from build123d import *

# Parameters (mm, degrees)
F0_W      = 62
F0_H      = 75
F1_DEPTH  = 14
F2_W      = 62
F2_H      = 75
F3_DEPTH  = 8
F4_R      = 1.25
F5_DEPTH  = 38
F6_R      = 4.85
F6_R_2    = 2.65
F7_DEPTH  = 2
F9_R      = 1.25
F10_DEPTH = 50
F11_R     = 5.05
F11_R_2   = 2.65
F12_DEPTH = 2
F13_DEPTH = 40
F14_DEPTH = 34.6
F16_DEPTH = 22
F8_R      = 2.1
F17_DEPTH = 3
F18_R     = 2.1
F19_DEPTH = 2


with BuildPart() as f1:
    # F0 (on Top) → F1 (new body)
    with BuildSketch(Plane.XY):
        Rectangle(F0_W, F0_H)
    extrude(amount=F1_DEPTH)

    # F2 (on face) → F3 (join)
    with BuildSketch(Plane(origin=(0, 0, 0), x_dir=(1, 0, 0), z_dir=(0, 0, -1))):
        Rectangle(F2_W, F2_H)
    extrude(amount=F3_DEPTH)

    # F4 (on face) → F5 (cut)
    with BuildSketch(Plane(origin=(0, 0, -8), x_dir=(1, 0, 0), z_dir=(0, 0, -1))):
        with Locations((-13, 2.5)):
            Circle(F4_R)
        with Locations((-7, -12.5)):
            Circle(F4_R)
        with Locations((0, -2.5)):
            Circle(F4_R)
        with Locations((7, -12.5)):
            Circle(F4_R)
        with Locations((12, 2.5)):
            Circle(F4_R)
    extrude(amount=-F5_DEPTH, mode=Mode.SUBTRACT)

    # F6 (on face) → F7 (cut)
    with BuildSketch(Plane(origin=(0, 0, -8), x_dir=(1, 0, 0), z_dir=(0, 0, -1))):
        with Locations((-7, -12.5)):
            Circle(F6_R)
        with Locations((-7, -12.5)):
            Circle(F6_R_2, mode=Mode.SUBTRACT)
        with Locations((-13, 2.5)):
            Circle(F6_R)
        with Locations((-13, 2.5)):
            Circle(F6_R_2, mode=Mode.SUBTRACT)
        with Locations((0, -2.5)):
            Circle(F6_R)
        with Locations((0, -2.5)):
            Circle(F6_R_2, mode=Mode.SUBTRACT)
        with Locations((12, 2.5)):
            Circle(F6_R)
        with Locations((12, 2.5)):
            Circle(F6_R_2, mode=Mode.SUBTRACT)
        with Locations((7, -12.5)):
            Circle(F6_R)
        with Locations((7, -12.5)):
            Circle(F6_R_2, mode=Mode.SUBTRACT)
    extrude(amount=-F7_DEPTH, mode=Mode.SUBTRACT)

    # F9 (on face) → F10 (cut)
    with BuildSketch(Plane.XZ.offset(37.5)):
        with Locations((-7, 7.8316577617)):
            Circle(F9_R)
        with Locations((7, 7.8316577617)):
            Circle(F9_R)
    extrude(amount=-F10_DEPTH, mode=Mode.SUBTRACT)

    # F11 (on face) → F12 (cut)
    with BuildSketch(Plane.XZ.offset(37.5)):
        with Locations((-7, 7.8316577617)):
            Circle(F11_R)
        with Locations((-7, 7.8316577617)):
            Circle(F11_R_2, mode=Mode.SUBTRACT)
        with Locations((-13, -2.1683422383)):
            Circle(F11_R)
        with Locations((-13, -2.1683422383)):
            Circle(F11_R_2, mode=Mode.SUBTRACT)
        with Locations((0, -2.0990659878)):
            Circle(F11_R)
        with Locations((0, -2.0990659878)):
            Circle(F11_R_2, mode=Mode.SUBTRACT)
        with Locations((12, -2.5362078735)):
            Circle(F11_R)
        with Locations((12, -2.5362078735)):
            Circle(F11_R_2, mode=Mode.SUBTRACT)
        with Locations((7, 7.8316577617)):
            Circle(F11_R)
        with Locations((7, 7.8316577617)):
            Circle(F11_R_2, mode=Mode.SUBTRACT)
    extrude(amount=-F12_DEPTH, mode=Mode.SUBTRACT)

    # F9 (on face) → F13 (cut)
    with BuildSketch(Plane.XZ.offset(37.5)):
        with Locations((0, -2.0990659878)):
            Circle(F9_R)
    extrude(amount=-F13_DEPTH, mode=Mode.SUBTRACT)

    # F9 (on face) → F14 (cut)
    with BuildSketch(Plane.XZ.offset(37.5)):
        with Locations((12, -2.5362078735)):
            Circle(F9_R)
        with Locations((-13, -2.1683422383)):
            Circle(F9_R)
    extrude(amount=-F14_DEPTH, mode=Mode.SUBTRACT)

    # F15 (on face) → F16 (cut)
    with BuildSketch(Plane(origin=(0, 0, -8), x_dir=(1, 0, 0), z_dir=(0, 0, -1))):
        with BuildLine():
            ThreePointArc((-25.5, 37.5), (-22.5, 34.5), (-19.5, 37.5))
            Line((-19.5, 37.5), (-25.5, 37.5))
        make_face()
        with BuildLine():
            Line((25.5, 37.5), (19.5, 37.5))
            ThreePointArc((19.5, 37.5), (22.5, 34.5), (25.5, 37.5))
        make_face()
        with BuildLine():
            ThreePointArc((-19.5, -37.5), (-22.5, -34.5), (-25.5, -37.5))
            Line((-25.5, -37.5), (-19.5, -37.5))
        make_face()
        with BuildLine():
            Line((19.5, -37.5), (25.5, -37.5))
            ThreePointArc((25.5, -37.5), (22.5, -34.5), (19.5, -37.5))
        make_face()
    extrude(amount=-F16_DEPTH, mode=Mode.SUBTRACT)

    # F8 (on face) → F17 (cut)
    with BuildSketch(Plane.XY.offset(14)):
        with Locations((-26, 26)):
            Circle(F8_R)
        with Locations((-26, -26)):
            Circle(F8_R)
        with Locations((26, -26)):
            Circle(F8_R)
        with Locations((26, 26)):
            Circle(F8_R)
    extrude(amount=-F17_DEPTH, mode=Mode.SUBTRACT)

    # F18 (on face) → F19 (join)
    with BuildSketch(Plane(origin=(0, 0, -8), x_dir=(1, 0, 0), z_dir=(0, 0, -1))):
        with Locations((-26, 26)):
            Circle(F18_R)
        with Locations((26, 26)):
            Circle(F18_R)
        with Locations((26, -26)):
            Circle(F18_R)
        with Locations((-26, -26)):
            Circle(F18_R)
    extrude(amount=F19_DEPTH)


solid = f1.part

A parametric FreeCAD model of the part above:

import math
import FreeCAD as App
import Part
import Sketcher
Q = App.Units.Quantity

doc = App.newDocument("Part")
params = doc.addObject("Spreadsheet::Sheet", "Params")
for row, (alias, value) in enumerate([
    ("sketch1_width", "62 mm"),
    ("sketch1_height", "75 mm"),
    ("pad1_length", "14 mm"),
    ("sketch2_width", "62 mm"),
    ("sketch2_height", "75 mm"),
    ("pad2_length", "8 mm"),
    ("sketch3_diameter", "2.5 mm"),
    ("pocket1_length", "38 mm"),
    ("sketch4_diameter", "9.7 mm"),
    ("sketch4_diameter2", "5.3 mm"),
    ("pocket2_length", "2 mm"),
    ("sketch5_diameter", "2.5 mm"),
    ("pocket3_length", "50 mm"),
    ("sketch6_diameter", "10.1 mm"),
    ("sketch6_diameter2", "5.3 mm"),
    ("pocket4_length", "2 mm"),
    ("sketch7_diameter", "2.5 mm"),
    ("pocket5_length", "40 mm"),
    ("sketch8_diameter", "2.5 mm"),
    ("pocket6_length", "34.6 mm"),
    ("sketch9_radius", "3 mm"),
    ("pocket7_length", "22 mm"),
    ("sketch10_diameter", "4.2 mm"),
    ("pocket8_length", "3 mm"),
    ("sketch11_diameter", "4.2 mm"),
    ("pad3_length", "2 mm"),
], start=1):
    params.set(f"A{row}", alias)
    params.set(f"B{row}", "=" + value)
    params.setAlias(f"B{row}", alias)

body = doc.addObject("PartDesign::Body", "Body")

sketch1 = body.newObject("Sketcher::SketchObject", "Sketch")
sketch1.AttachmentSupport = (doc.getObject("XY_Plane"), [""])
sketch1.MapMode = "FlatFace"
sketch1.addGeometry([
    Part.LineSegment(App.Vector(-31, 38, 0), App.Vector(-31, -38, 0)),
    Part.LineSegment(App.Vector(-31, -38, 0), App.Vector(31, -38, 0)),
    Part.LineSegment(App.Vector(31, -38, 0), App.Vector(31, 38, 0)),
    Part.LineSegment(App.Vector(31, 38, 0), App.Vector(-31, 38, 0)),
], False)
sketch1.addConstraint([
    Sketcher.Constraint("Coincident", 0, 2, 1, 1),
    Sketcher.Constraint("Coincident", 1, 2, 2, 1),
    Sketcher.Constraint("Coincident", 2, 2, 3, 1),
    Sketcher.Constraint("Coincident", 3, 2, 0, 1),
    Sketcher.Constraint("Vertical", 0),
    Sketcher.Constraint("Horizontal", 1),
    Sketcher.Constraint("Vertical", 2),
    Sketcher.Constraint("Horizontal", 3),
    Sketcher.Constraint("Symmetric", 0, 2, 2, 2, -1, 1),
    Sketcher.Constraint("DistanceX", 1, 1, 1, 2, Q("62 mm")),
    Sketcher.Constraint("DistanceY", 0, 2, 0, 1, Q("75 mm")),
])
sketch1.setExpression("Constraints[9]", "Params.sketch1_width")
sketch1.setExpression("Constraints[10]", "Params.sketch1_height")
pad1 = body.newObject("PartDesign::Pad", "Pad")
pad1.Profile = sketch1
pad1.setExpression("Length", "Params.pad1_length")

sketch2 = body.newObject("Sketcher::SketchObject", "Sketch001")
sketch2.AttachmentSupport = (doc.getObject("XY_Plane"), [""])
sketch2.MapMode = "FlatFace"
sketch2.addGeometry([
    Part.LineSegment(App.Vector(-31, -38, 0), App.Vector(-31, 38, 0)),
    Part.LineSegment(App.Vector(-31, 38, 0), App.Vector(31, 38, 0)),
    Part.LineSegment(App.Vector(31, 38, 0), App.Vector(31, -38, 0)),
    Part.LineSegment(App.Vector(31, -38, 0), App.Vector(-31, -38, 0)),
], False)
sketch2.addConstraint([
    Sketcher.Constraint("Coincident", 0, 2, 1, 1),
    Sketcher.Constraint("Coincident", 1, 2, 2, 1),
    Sketcher.Constraint("Coincident", 2, 2, 3, 1),
    Sketcher.Constraint("Coincident", 3, 2, 0, 1),
    Sketcher.Constraint("Vertical", 0),
    Sketcher.Constraint("Horizontal", 1),
    Sketcher.Constraint("Vertical", 2),
    Sketcher.Constraint("Horizontal", 3),
    Sketcher.Constraint("Symmetric", 0, 2, 2, 2, -1, 1),
    Sketcher.Constraint("DistanceX", 1, 1, 1, 2, Q("62 mm")),
    Sketcher.Constraint("DistanceY", 0, 1, 0, 2, Q("75 mm")),
])
sketch2.setExpression("Constraints[9]", "Params.sketch2_width")
sketch2.setExpression("Constraints[10]", "Params.sketch2_height")
pad2 = body.newObject("PartDesign::Pad", "Pad001")
pad2.Profile = sketch2
pad2.setExpression("Length", "Params.pad2_length")
pad2.Reversed = True

sketch3 = body.newObject("Sketcher::SketchObject", "Sketch002")
sketch3.AttachmentSupport = (doc.getObject("XY_Plane"), [""])
sketch3.MapMode = "FlatFace"
sketch3.AttachmentOffset = App.Placement(App.Vector(0, 0, -8), App.Rotation())
sketch3.addGeometry([
    Part.Circle(App.Vector(-13, -2.5, 0), App.Vector(0, 0, 1), 1.2),
    Part.Circle(App.Vector(-7, 12.5, 0), App.Vector(0, 0, 1), 1.2),
    Part.Circle(App.Vector(0, 2.5, 0), App.Vector(0, 0, 1), 1.2),
    Part.Circle(App.Vector(7, 12.5, 0), App.Vector(0, 0, 1), 1.2),
    Part.Circle(App.Vector(12, -2.5, 0), App.Vector(0, 0, 1), 1.2),
], False)
sketch3.addConstraint([
    Sketcher.Constraint("Equal", 0, 1),
    Sketcher.Constraint("Equal", 1, 2),
    Sketcher.Constraint("Equal", 2, 3),
    Sketcher.Constraint("Equal", 3, 4),
    Sketcher.Constraint("Symmetric", 1, 3, 3, 3, -2),
    Sketcher.Constraint("PointOnObject", 2, 3, -2),
    Sketcher.Constraint("Horizontal", 0, 3, 4, 3),
    Sketcher.Constraint("Diameter", 0, Q("2.5 mm")),
    Sketcher.Constraint("DistanceX", 0, 3, -1, 1, Q("13 mm")),
    Sketcher.Constraint("DistanceX", 1, 3, -1, 1, Q("7 mm")),
    Sketcher.Constraint("DistanceX", -1, 1, 4, 3, Q("12 mm")),
    Sketcher.Constraint("DistanceY", 0, 3, 1, 3, Q("15 mm")),
    Sketcher.Constraint("DistanceY", 2, 3, 1, 3, Q("10 mm")),
    Sketcher.Constraint("DistanceY", 0, 3, -1, 1, Q("2.5 mm")),
])
sketch3.setExpression("Constraints[7]", "Params.sketch3_diameter")
pocket1 = body.newObject("PartDesign::Pocket", "Pocket")
pocket1.Profile = sketch3
pocket1.setExpression("Length", "Params.pocket1_length")
pocket1.Reversed = True

sketch4 = body.newObject("Sketcher::SketchObject", "Sketch003")
sketch4.AttachmentSupport = (doc.getObject("XY_Plane"), [""])
sketch4.MapMode = "FlatFace"
sketch4.AttachmentOffset = App.Placement(App.Vector(0, 0, -8), App.Rotation())
sketch4.addGeometry([
    Part.Circle(App.Vector(-7, 12.5, 0), App.Vector(0, 0, 1), 4.8),
    Part.Circle(App.Vector(-7, 12.5, 0), App.Vector(0, 0, 1), 2.6),
    Part.Circle(App.Vector(-13, -2.5, 0), App.Vector(0, 0, 1), 4.8),
    Part.Circle(App.Vector(-13, -2.5, 0), App.Vector(0, 0, 1), 2.6),
    Part.Circle(App.Vector(0, 2.5, 0), App.Vector(0, 0, 1), 4.8),
    Part.Circle(App.Vector(0, 2.5, 0), App.Vector(0, 0, 1), 2.6),
    Part.Circle(App.Vector(12, -2.5, 0), App.Vector(0, 0, 1), 4.8),
    Part.Circle(App.Vector(12, -2.5, 0), App.Vector(0, 0, 1), 2.6),
    Part.Circle(App.Vector(7, 12.5, 0), App.Vector(0, 0, 1), 4.8),
    Part.Circle(App.Vector(7, 12.5, 0), App.Vector(0, 0, 1), 2.6),
], False)
sketch4.addConstraint([
    Sketcher.Constraint("Coincident", 1, 3, 0, 3),
    Sketcher.Constraint("Coincident", 3, 3, 2, 3),
    Sketcher.Constraint("Coincident", 5, 3, 4, 3),
    Sketcher.Constraint("Coincident", 7, 3, 6, 3),
    Sketcher.Constraint("Coincident", 9, 3, 8, 3),
    Sketcher.Constraint("Equal", 0, 2),
    Sketcher.Constraint("Equal", 1, 3),
    Sketcher.Constraint("Equal", 2, 4),
    Sketcher.Constraint("Equal", 3, 5),
    Sketcher.Constraint("Equal", 4, 6),
    Sketcher.Constraint("Equal", 5, 7),
    Sketcher.Constraint("Equal", 6, 8),
    Sketcher.Constraint("Equal", 7, 9),
    Sketcher.Constraint("Symmetric", 0, 3, 8, 3, -2),
    Sketcher.Constraint("PointOnObject", 4, 3, -2),
    Sketcher.Constraint("Horizontal", 3, 3, 6, 3),
    Sketcher.Constraint("Diameter", 0, Q("9.7 mm")),
    Sketcher.Constraint("Diameter", 1, Q("5.3 mm")),
    Sketcher.Constraint("DistanceX", 0, 3, -1, 1, Q("7 mm")),
    Sketcher.Constraint("DistanceX", 2, 3, -1, 1, Q("13 mm")),
    Sketcher.Constraint("DistanceX", -1, 1, 6, 3, Q("12 mm")),
    Sketcher.Constraint("DistanceY", 2, 3, 0, 3, Q("15 mm")),
    Sketcher.Constraint("DistanceY", 4, 3, 0, 3, Q("10 mm")),
    Sketcher.Constraint("DistanceY", -1, 1, 0, 3, Q("12.5 mm")),
])
sketch4.setExpression("Constraints[16]", "Params.sketch4_diameter")
sketch4.setExpression("Constraints[17]", "Params.sketch4_diameter2")
pocket2 = body.newObject("PartDesign::Pocket", "Pocket001")
pocket2.Profile = sketch4
pocket2.setExpression("Length", "Params.pocket2_length")
pocket2.Reversed = True

sketch5 = body.newObject("Sketcher::SketchObject", "Sketch004")
sketch5.AttachmentSupport = (doc.getObject("XZ_Plane"), [""])
sketch5.MapMode = "FlatFace"
sketch5.AttachmentOffset = App.Placement(App.Vector(0, 0, 37.5), App.Rotation())
sketch5.addGeometry([
    Part.Circle(App.Vector(-7, 7.8, 0), App.Vector(0, 0, 1), 1.2),
    Part.Circle(App.Vector(7, 7.8, 0), App.Vector(0, 0, 1), 1.2),
], False)
sketch5.addConstraint([
    Sketcher.Constraint("Equal", 0, 1),
    Sketcher.Constraint("Symmetric", 0, 3, 1, 3, -2),
    Sketcher.Constraint("Diameter", 0, Q("2.5 mm")),
    Sketcher.Constraint("DistanceX", 0, 3, -1, 1, Q("7 mm")),
    Sketcher.Constraint("DistanceY", -1, 1, 0, 3, Q("7.831658 mm")),
])
sketch5.setExpression("Constraints[2]", "Params.sketch5_diameter")
pocket3 = body.newObject("PartDesign::Pocket", "Pocket002")
pocket3.Profile = sketch5
pocket3.setExpression("Length", "Params.pocket3_length")

sketch6 = body.newObject("Sketcher::SketchObject", "Sketch005")
sketch6.AttachmentSupport = (doc.getObject("XZ_Plane"), [""])
sketch6.MapMode = "FlatFace"
sketch6.AttachmentOffset = App.Placement(App.Vector(0, 0, 37.5), App.Rotation())
sketch6.addGeometry([
    Part.Circle(App.Vector(-7, 7.8, 0), App.Vector(0, 0, 1), 5),
    Part.Circle(App.Vector(-7, 7.8, 0), App.Vector(0, 0, 1), 2.6),
    Part.Circle(App.Vector(-13, -2.2, 0), App.Vector(0, 0, 1), 5),
    Part.Circle(App.Vector(-13, -2.2, 0), App.Vector(0, 0, 1), 2.6),
    Part.Circle(App.Vector(0, -2.1, 0), App.Vector(0, 0, 1), 5),
    Part.Circle(App.Vector(0, -2.1, 0), App.Vector(0, 0, 1), 2.6),
    Part.Circle(App.Vector(12, -2.5, 0), App.Vector(0, 0, 1), 5),
    Part.Circle(App.Vector(12, -2.5, 0), App.Vector(0, 0, 1), 2.6),
    Part.Circle(App.Vector(7, 7.8, 0), App.Vector(0, 0, 1), 5),
    Part.Circle(App.Vector(7, 7.8, 0), App.Vector(0, 0, 1), 2.6),
], False)
sketch6.addConstraint([
    Sketcher.Constraint("Coincident", 1, 3, 0, 3),
    Sketcher.Constraint("Coincident", 3, 3, 2, 3),
    Sketcher.Constraint("Coincident", 5, 3, 4, 3),
    Sketcher.Constraint("Coincident", 7, 3, 6, 3),
    Sketcher.Constraint("Coincident", 9, 3, 8, 3),
    Sketcher.Constraint("Equal", 0, 2),
    Sketcher.Constraint("Equal", 1, 3),
    Sketcher.Constraint("Equal", 2, 4),
    Sketcher.Constraint("Equal", 3, 5),
    Sketcher.Constraint("Equal", 4, 6),
    Sketcher.Constraint("Equal", 5, 7),
    Sketcher.Constraint("Equal", 6, 8),
    Sketcher.Constraint("Equal", 7, 9),
    Sketcher.Constraint("Symmetric", 0, 3, 8, 3, -2),
    Sketcher.Constraint("PointOnObject", 4, 3, -2),
    Sketcher.Constraint("Diameter", 0, Q("10.1 mm")),
    Sketcher.Constraint("Diameter", 1, Q("5.3 mm")),
    Sketcher.Constraint("DistanceX", 0, 3, -1, 1, Q("7 mm")),
    Sketcher.Constraint("DistanceX", 2, 3, -1, 1, Q("13 mm")),
    Sketcher.Constraint("DistanceX", -1, 1, 6, 3, Q("12 mm")),
    Sketcher.Constraint("DistanceY", 2, 3, 0, 3, Q("10 mm")),
    Sketcher.Constraint("DistanceY", 6, 3, 4, 3, Q("0.437142 mm")),
    Sketcher.Constraint("DistanceY", -1, 1, 0, 3, Q("7.831658 mm")),
    Sketcher.Constraint("DistanceY", 4, 3, -1, 1, Q("2.099066 mm")),
])
sketch6.setExpression("Constraints[15]", "Params.sketch6_diameter")
sketch6.setExpression("Constraints[16]", "Params.sketch6_diameter2")
pocket4 = body.newObject("PartDesign::Pocket", "Pocket003")
pocket4.Profile = sketch6
pocket4.setExpression("Length", "Params.pocket4_length")

sketch7 = body.newObject("Sketcher::SketchObject", "Sketch006")
sketch7.AttachmentSupport = (doc.getObject("XZ_Plane"), [""])
sketch7.MapMode = "FlatFace"
sketch7.AttachmentOffset = App.Placement(App.Vector(0, 0, 37.5), App.Rotation())
sketch7.addGeometry(Part.Circle(App.Vector(0, -2.1, 0), App.Vector(0, 0, 1), 1.2), False)
sketch7.addConstraint([
    Sketcher.Constraint("PointOnObject", 0, 3, -2),
    Sketcher.Constraint("Diameter", 0, Q("2.5 mm")),
    Sketcher.Constraint("DistanceY", 0, 3, -1, 1, Q("2.099066 mm")),
])
sketch7.setExpression("Constraints[1]", "Params.sketch7_diameter")
pocket5 = body.newObject("PartDesign::Pocket", "Pocket004")
pocket5.Profile = sketch7
pocket5.setExpression("Length", "Params.pocket5_length")

sketch8 = body.newObject("Sketcher::SketchObject", "Sketch007")
sketch8.AttachmentSupport = (doc.getObject("XZ_Plane"), [""])
sketch8.MapMode = "FlatFace"
sketch8.AttachmentOffset = App.Placement(App.Vector(0, 0, 37.5), App.Rotation())
sketch8.addGeometry([
    Part.Circle(App.Vector(12, -2.5, 0), App.Vector(0, 0, 1), 1.2),
    Part.Circle(App.Vector(-13, -2.2, 0), App.Vector(0, 0, 1), 1.2),
], False)
sketch8.addConstraint([
    Sketcher.Constraint("Equal", 0, 1),
    Sketcher.Constraint("Diameter", 0, Q("2.5 mm")),
    Sketcher.Constraint("DistanceX", -1, 1, 0, 3, Q("12 mm")),
    Sketcher.Constraint("DistanceX", 1, 3, -1, 1, Q("13 mm")),
    Sketcher.Constraint("DistanceY", 0, 3, -1, 1, Q("2.536208 mm")),
    Sketcher.Constraint("DistanceY", 1, 3, -1, 1, Q("2.168342 mm")),
])
sketch8.setExpression("Constraints[1]", "Params.sketch8_diameter")
pocket6 = body.newObject("PartDesign::Pocket", "Pocket005")
pocket6.Profile = sketch8
pocket6.setExpression("Length", "Params.pocket6_length")

sketch9 = body.newObject("Sketcher::SketchObject", "Sketch008")
sketch9.AttachmentSupport = (doc.getObject("XY_Plane"), [""])
sketch9.MapMode = "FlatFace"
sketch9.AttachmentOffset = App.Placement(App.Vector(0, 0, -8), App.Rotation())
sketch9.addGeometry([
    Part.ArcOfCircle(Part.Circle(App.Vector(-22.5, -37.5, 0), App.Vector(0, 0, 1), 3), math.radians(0), math.radians(180)),
    Part.LineSegment(App.Vector(-19.5, -37.5, 0), App.Vector(-25.5, -37.5, 0)),
    Part.LineSegment(App.Vector(25.5, -37.5, 0), App.Vector(19.5, -37.5, 0)),
    Part.ArcOfCircle(Part.Circle(App.Vector(22.5, -37.5, 0), App.Vector(0, 0, 1), 3), math.radians(0), math.radians(180)),
    Part.ArcOfCircle(Part.Circle(App.Vector(-22.5, 37.5, 0), App.Vector(0, 0, 1), 3), math.radians(180), math.radians(360)),
    Part.LineSegment(App.Vector(-25.5, 37.5, 0), App.Vector(-19.5, 37.5, 0)),
    Part.LineSegment(App.Vector(19.5, 37.5, 0), App.Vector(25.5, 37.5, 0)),
    Part.ArcOfCircle(Part.Circle(App.Vector(22.5, 37.5, 0), App.Vector(0, 0, 1), 3), math.radians(180), math.radians(360)),
], False)
sketch9.addConstraint([
    Sketcher.Constraint("Coincident", 0, 1, 1, 1),
    Sketcher.Constraint("Coincident", 1, 2, 0, 2),
    Sketcher.Constraint("Coincident", 2, 1, 3, 1),
    Sketcher.Constraint("Coincident", 3, 2, 2, 2),
    Sketcher.Constraint("Coincident", 4, 1, 5, 1),
    Sketcher.Constraint("Coincident", 5, 2, 4, 2),
    Sketcher.Constraint("Coincident", 6, 1, 7, 1),
    Sketcher.Constraint("Coincident", 7, 2, 6, 2),
    Sketcher.Constraint("Horizontal", 1),
    Sketcher.Constraint("Horizontal", 2),
    Sketcher.Constraint("Horizontal", 5),
    Sketcher.Constraint("Horizontal", 6),
    Sketcher.Constraint("Equal", 0, 3),
    Sketcher.Constraint("Equal", 3, 4),
    Sketcher.Constraint("Equal", 4, 7),
    Sketcher.Constraint("Symmetric", 3, 3, 4, 3, -1, 1),
    Sketcher.Constraint("Symmetric", 0, 3, 7, 3, -1, 1),
    Sketcher.Constraint("Symmetric", 0, 3, 3, 3, -2),
    Sketcher.Constraint("Horizontal", 3, 3, 0, 1),
    Sketcher.Constraint("Horizontal", 1, 2, 2, 1),
    Sketcher.Constraint("Horizontal", 7, 3, 4, 1),
    Sketcher.Constraint("Horizontal", 5, 2, 6, 1),
    Sketcher.Constraint("Radius", 0, Q("3 mm")),
    Sketcher.Constraint("DistanceX", 0, 3, 3, 3, Q("45 mm")),
    Sketcher.Constraint("DistanceY", 0, 3, 4, 3, Q("75 mm")),
])
sketch9.setExpression("Constraints[22]", "Params.sketch9_radius")
pocket7 = body.newObject("PartDesign::Pocket", "Pocket006")
pocket7.Profile = sketch9
pocket7.setExpression("Length", "Params.pocket7_length")
pocket7.Reversed = True

sketch10 = body.newObject("Sketcher::SketchObject", "Sketch009")
sketch10.AttachmentSupport = (doc.getObject("XY_Plane"), [""])
sketch10.MapMode = "FlatFace"
sketch10.AttachmentOffset = App.Placement(App.Vector(0, 0, 14), App.Rotation())
sketch10.addGeometry([
    Part.Circle(App.Vector(-26, 26, 0), App.Vector(0, 0, 1), 2.1),
    Part.Circle(App.Vector(-26, -26, 0), App.Vector(0, 0, 1), 2.1),
    Part.Circle(App.Vector(26, -26, 0), App.Vector(0, 0, 1), 2.1),
    Part.Circle(App.Vector(26, 26, 0), App.Vector(0, 0, 1), 2.1),
], False)
sketch10.addConstraint([
    Sketcher.Constraint("Equal", 0, 1),
    Sketcher.Constraint("Equal", 1, 2),
    Sketcher.Constraint("Equal", 2, 3),
    Sketcher.Constraint("Symmetric", 0, 3, 2, 3, -1, 1),
    Sketcher.Constraint("Symmetric", 1, 3, 3, 3, -1, 1),
    Sketcher.Constraint("Symmetric", 1, 3, 2, 3, -2),
    Sketcher.Constraint("Diameter", 0, Q("4.2 mm")),
    Sketcher.Constraint("DistanceX", 0, 3, -1, 1, Q("26 mm")),
    Sketcher.Constraint("DistanceY", -1, 1, 0, 3, Q("26 mm")),
])
sketch10.setExpression("Constraints[6]", "Params.sketch10_diameter")
pocket8 = body.newObject("PartDesign::Pocket", "Pocket007")
pocket8.Profile = sketch10
pocket8.setExpression("Length", "Params.pocket8_length")

sketch11 = body.newObject("Sketcher::SketchObject", "Sketch010")
sketch11.AttachmentSupport = (doc.getObject("XY_Plane"), [""])
sketch11.MapMode = "FlatFace"
sketch11.AttachmentOffset = App.Placement(App.Vector(0, 0, -8), App.Rotation())
sketch11.addGeometry([
    Part.Circle(App.Vector(-26, -26, 0), App.Vector(0, 0, 1), 2.1),
    Part.Circle(App.Vector(26, -26, 0), App.Vector(0, 0, 1), 2.1),
    Part.Circle(App.Vector(26, 26, 0), App.Vector(0, 0, 1), 2.1),
    Part.Circle(App.Vector(-26, 26, 0), App.Vector(0, 0, 1), 2.1),
], False)
sketch11.addConstraint([
    Sketcher.Constraint("Equal", 0, 1),
    Sketcher.Constraint("Equal", 1, 2),
    Sketcher.Constraint("Equal", 2, 3),
    Sketcher.Constraint("Symmetric", 0, 3, 2, 3, -1, 1),
    Sketcher.Constraint("Symmetric", 1, 3, 3, 3, -1, 1),
    Sketcher.Constraint("Symmetric", 0, 3, 1, 3, -2),
    Sketcher.Constraint("Diameter", 0, Q("4.2 mm")),
    Sketcher.Constraint("DistanceX", 0, 3, -1, 1, Q("26 mm")),
    Sketcher.Constraint("DistanceY", 0, 3, -1, 1, Q("26 mm")),
])
sketch11.setExpression("Constraints[6]", "Params.sketch11_diameter")
pad3 = body.newObject("PartDesign::Pad", "Pad002")
pad3.Profile = sketch11
pad3.setExpression("Length", "Params.pad3_length")
pad3.Reversed = True

doc.recompute()
